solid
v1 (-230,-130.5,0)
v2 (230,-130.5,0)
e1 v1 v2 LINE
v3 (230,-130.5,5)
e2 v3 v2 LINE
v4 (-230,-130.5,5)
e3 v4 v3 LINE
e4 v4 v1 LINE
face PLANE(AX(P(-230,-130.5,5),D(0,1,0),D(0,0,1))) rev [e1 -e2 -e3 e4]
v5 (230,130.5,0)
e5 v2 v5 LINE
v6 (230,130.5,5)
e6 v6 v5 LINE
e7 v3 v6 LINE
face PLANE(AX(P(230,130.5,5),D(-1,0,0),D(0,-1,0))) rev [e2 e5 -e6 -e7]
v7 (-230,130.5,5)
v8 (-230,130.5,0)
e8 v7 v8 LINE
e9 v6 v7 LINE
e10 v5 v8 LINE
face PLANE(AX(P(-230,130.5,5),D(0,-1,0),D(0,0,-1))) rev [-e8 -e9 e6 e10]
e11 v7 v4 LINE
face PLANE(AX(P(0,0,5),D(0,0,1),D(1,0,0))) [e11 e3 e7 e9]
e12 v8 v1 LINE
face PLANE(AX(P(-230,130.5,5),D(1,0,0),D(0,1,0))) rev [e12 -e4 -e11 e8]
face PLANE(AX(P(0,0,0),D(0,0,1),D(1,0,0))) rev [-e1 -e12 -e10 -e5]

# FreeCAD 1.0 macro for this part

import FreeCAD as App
import Part
import Sketcher
Q = App.Units.Quantity

doc = App.newDocument("Part")
body = doc.addObject("PartDesign::Body", "Body")

# Sketch on XY plane
sketch1 = body.newObject("Sketcher::SketchObject", "Sketch")
sketch1.AttachmentSupport = (doc.getObject("XY_Plane"), [""])
sketch1.MapMode = "FlatFace"
sketch1.addGeometry(Part.LineSegment(App.Vector(-230, 130, 0), App.Vector(-230, -130, 0)), False)
sketch1.addGeometry(Part.LineSegment(App.Vector(-230, -130, 0), App.Vector(230, -130, 0)), False)
sketch1.addGeometry(Part.LineSegment(App.Vector(230, -130, 0), App.Vector(230, 130, 0)), False)
sketch1.addGeometry(Part.LineSegment(App.Vector(230, 130, 0), App.Vector(-230, 130, 0)), False)
sketch1.addConstraint(Sketcher.Constraint("Coincident", 0, 2, 1, 1))
sketch1.addConstraint(Sketcher.Constraint("Coincident", 1, 2, 2, 1))
sketch1.addConstraint(Sketcher.Constraint("Coincident", 2, 2, 3, 1))
sketch1.addConstraint(Sketcher.Constraint("Coincident", 3, 2, 0, 1))
sketch1.addConstraint(Sketcher.Constraint("Vertical", 0))
sketch1.addConstraint(Sketcher.Constraint("Horizontal", 1))
sketch1.addConstraint(Sketcher.Constraint("Vertical", 2))
sketch1.addConstraint(Sketcher.Constraint("Horizontal", 3))
sketch1.addConstraint(Sketcher.Constraint("Symmetric", 0, 2, 2, 2, -1, 1))
sketch1.addConstraint(Sketcher.Constraint("DistanceX", 1, 1, 1, 2, Q("460 mm")))
sketch1.addConstraint(Sketcher.Constraint("DistanceY", 0, 2, 0, 1, Q("261 mm")))
pad1 = body.newObject("PartDesign::Pad", "Pad")
pad1.Profile = sketch1
pad1.Length = 5

doc.recompute()
